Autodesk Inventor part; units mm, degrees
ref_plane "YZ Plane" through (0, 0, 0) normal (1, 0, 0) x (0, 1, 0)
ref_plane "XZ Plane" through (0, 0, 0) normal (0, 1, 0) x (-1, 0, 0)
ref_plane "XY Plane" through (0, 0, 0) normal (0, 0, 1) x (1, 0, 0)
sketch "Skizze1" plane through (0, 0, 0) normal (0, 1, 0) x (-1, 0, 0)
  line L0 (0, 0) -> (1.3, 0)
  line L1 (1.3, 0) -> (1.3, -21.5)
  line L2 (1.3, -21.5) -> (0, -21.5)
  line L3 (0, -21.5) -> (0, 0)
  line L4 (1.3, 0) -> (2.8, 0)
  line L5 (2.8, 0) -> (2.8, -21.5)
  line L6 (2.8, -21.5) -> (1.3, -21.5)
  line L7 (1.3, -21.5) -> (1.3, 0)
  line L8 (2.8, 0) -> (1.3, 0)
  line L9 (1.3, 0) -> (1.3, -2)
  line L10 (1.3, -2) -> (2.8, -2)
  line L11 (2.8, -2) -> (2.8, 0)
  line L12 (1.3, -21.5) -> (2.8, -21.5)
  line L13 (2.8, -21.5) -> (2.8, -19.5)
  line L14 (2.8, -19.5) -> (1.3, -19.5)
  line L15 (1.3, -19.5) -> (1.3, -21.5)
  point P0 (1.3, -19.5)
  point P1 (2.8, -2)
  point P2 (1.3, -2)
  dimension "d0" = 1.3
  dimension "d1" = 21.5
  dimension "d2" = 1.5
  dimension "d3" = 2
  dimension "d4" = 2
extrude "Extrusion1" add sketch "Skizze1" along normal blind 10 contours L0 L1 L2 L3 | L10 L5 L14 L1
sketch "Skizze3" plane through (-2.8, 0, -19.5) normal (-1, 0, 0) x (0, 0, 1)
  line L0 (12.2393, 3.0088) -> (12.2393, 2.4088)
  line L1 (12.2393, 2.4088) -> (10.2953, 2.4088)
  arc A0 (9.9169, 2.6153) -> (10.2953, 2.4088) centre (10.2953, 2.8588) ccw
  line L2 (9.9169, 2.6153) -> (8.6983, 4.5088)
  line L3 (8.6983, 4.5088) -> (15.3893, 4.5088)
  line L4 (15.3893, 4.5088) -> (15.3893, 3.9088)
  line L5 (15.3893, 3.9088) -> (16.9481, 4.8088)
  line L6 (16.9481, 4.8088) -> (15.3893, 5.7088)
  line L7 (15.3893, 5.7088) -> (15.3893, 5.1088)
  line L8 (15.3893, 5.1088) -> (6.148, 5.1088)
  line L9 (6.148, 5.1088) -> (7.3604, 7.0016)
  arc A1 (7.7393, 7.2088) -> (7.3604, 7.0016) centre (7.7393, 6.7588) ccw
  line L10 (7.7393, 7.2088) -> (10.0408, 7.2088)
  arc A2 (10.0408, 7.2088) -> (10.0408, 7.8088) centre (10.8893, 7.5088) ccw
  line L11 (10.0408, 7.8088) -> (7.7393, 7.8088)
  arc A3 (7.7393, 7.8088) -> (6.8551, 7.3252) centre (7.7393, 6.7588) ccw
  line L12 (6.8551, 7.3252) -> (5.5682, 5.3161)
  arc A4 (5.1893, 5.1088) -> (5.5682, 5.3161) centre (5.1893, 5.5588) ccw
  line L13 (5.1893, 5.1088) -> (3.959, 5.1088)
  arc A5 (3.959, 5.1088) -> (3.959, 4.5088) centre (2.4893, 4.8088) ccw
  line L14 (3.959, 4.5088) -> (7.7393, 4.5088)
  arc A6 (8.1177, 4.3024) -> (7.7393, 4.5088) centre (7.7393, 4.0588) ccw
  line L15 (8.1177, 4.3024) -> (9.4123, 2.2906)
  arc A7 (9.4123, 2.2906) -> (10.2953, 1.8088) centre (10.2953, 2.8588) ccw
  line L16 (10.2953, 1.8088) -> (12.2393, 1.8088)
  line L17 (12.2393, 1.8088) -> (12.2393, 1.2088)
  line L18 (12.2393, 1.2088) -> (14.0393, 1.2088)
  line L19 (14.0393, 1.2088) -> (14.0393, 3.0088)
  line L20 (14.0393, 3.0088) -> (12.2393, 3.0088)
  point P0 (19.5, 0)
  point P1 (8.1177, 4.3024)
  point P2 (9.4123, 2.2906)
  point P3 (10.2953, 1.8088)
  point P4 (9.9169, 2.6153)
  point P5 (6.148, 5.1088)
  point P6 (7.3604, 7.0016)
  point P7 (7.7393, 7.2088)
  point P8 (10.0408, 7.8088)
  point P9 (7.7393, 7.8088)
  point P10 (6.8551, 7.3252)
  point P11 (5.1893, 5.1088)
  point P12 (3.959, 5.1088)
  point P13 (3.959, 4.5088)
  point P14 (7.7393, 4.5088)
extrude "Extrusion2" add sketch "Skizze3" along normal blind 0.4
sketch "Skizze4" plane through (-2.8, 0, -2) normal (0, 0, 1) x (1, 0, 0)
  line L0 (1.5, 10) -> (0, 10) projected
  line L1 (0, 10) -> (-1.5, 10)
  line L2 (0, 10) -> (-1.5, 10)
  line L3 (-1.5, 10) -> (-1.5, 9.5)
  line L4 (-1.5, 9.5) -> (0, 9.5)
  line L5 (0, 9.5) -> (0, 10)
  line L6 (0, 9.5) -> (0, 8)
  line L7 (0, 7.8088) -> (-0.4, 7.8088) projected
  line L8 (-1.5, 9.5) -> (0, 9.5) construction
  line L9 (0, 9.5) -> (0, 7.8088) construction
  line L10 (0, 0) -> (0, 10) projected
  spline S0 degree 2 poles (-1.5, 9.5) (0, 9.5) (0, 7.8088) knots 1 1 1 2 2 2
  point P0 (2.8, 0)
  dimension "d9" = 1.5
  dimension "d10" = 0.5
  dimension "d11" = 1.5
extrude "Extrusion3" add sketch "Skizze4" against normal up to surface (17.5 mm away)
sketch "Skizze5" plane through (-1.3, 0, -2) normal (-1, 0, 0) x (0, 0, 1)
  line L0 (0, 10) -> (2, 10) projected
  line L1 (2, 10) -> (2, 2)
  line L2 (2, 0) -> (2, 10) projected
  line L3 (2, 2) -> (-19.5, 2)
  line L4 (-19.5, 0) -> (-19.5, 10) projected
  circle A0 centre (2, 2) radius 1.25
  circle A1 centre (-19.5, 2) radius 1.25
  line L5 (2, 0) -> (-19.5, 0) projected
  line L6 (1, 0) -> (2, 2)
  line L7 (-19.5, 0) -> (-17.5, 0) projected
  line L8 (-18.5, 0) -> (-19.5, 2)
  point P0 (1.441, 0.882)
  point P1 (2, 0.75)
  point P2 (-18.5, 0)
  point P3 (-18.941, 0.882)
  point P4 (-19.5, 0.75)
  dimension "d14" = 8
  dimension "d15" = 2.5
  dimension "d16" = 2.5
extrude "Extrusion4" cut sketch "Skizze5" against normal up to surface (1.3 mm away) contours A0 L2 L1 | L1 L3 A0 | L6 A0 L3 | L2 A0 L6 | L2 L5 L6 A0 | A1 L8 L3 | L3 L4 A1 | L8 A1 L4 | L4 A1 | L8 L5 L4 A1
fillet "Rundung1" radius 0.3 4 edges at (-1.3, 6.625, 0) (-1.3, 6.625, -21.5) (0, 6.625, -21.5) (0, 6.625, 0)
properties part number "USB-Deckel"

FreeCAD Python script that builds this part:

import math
import FreeCAD as App
import Part
import Sketcher
Q = App.Units.Quantity


def edges_at(feature, points):
    """Names of the edges that pass closest to the given points."""
    edges = feature.Shape.Edges
    near = lambda p: min(range(len(edges)), key=lambda i: edges[i].distToShape(Part.Vertex(*p))[0])
    return sorted({f"Edge{near(p) + 1}" for p in points})

doc = App.newDocument("Part")
body = doc.addObject("PartDesign::Body", "Body")

# Sketch on XZ plane
sketch1 = body.newObject("Sketcher::SketchObject", "Sketch")
sketch1.AttachmentSupport = (doc.getObject("XZ_Plane"), [""])
sketch1.MapMode = "FlatFace"
sketch1.addGeometry(Part.LineSegment(App.Vector(-1.3, 0, 0), App.Vector(0, 0, 0)), False)
sketch1.addGeometry(Part.LineSegment(App.Vector(0, 0, 0), App.Vector(0, -21.5, 0)), False)
sketch1.addGeometry(Part.LineSegment(App.Vector(0, -21.5, 0), App.Vector(-1.3, -21.5, 0)), False)
sketch1.addGeometry(Part.LineSegment(App.Vector(-1.3, -21.5, 0), App.Vector(-1.3, -19.5, 0)), False)
sketch1.addGeometry(Part.LineSegment(App.Vector(-1.3, -19.5, 0), App.Vector(-2.8, -19.5, 0)), False)
sketch1.addGeometry(Part.LineSegment(App.Vector(-2.8, -19.5, 0), App.Vector(-2.8, -2, 0)), False)
sketch1.addGeometry(Part.LineSegment(App.Vector(-2.8, -2, 0), App.Vector(-1.3, -2, 0)), False)
sketch1.addGeometry(Part.LineSegment(App.Vector(-1.3, -2, 0), App.Vector(-1.3, 0, 0)), False)
sketch1.addConstraint(Sketcher.Constraint("Coincident", 0, 2, 1, 1))
sketch1.addConstraint(Sketcher.Constraint("Coincident", 1, 2, 2, 1))
sketch1.addConstraint(Sketcher.Constraint("Coincident", 2, 2, 3, 1))
sketch1.addConstraint(Sketcher.Constraint("Coincident", 3, 2, 4, 1))
sketch1.addConstraint(Sketcher.Constraint("Coincident", 4, 2, 5, 1))
sketch1.addConstraint(Sketcher.Constraint("Coincident", 5, 2, 6, 1))
sketch1.addConstraint(Sketcher.Constraint("Coincident", 6, 2, 7, 1))
sketch1.addConstraint(Sketcher.Constraint("Coincident", 7, 2, 0, 1))
sketch1.addConstraint(Sketcher.Constraint("Horizontal", 0))
sketch1.addConstraint(Sketcher.Constraint("Vertical", 1))
sketch1.addConstraint(Sketcher.Constraint("Horizontal", 2))
sketch1.addConstraint(Sketcher.Constraint("Vertical", 3))
sketch1.addConstraint(Sketcher.Constraint("Horizontal", 4))
sketch1.addConstraint(Sketcher.Constraint("Vertical", 5))
sketch1.addConstraint(Sketcher.Constraint("Horizontal", 6))
sketch1.addConstraint(Sketcher.Constraint("Vertical", 7))
sketch1.addConstraint(Sketcher.Constraint("Coincident", 0, 2, -1, 1))
sketch1.addConstraint(Sketcher.Constraint("Vertical", 3, 2, 6, 2))
sketch1.addConstraint(Sketcher.Constraint("Equal", 3, 7))
sketch1.addConstraint(Sketcher.Constraint("DistanceY", 3, 1, 3, 2, 2.0))
sketch1.addConstraint(Sketcher.Constraint("DistanceX", 0, 1, 0, 2, 1.3))
sketch1.addConstraint(Sketcher.Constraint("DistanceX", 4, 2, 4, 1, 1.5))
sketch1.addConstraint(Sketcher.Constraint("DistanceY", 1, 2, 1, 1, 21.5))
pad1 = body.newObject("PartDesign::Pad", "Pad")
pad1.Profile = sketch1
pad1.Length = 10
pad1.Reversed = True

# Sketch on YZ plane
sketch2 = body.newObject("Sketcher::SketchObject", "Sketch001")
sketch2.AttachmentSupport = (doc.getObject("YZ_Plane"), [""])
sketch2.MapMode = "FlatFace"
sketch2.AttachmentOffset = App.Placement(App.Vector(0, 0, -2.8), App.Rotation())
sketch2.addGeometry(Part.LineSegment(App.Vector(3.01, -5.46, 0), App.Vector(3.01, -7.26, 0)), False)
sketch2.addGeometry(Part.LineSegment(App.Vector(3.01, -7.26, 0), App.Vector(2.41, -7.26, 0)), False)
sketch2.addGeometry(Part.LineSegment(App.Vector(2.41, -7.26, 0), App.Vector(2.41, -9.2, 0)), False)
sketch2.addGeometry(Part.ArcOfCircle(Part.Circle(App.Vector(2.86, -9.2, 0), App.Vector(0, 0, 1), 0.45), math.radians(180), math.radians(237)), False)
sketch2.addGeometry(Part.LineSegment(App.Vector(2.62, -9.58, 0), App.Vector(4.51, -10.8, 0)), False)
sketch2.addGeometry(Part.LineSegment(App.Vector(4.51, -10.8, 0), App.Vector(4.51, -4.11, 0)), False)
sketch2.addGeometry(Part.LineSegment(App.Vector(4.51, -4.11, 0), App.Vector(3.91, -4.11, 0)), False)
sketch2.addGeometry(Part.LineSegment(App.Vector(3.91, -4.11, 0), App.Vector(4.81, -2.55, 0)), False)
sketch2.addGeometry(Part.LineSegment(App.Vector(4.81, -2.55, 0), App.Vector(5.71, -4.11, 0)), False)
sketch2.addGeometry(Part.LineSegment(App.Vector(5.71, -4.11, 0), App.Vector(5.11, -4.11, 0)), False)
sketch2.addGeometry(Part.LineSegment(App.Vector(5.11, -4.11, 0), App.Vector(5.11, -13.35, 0)), False)
sketch2.addGeometry(Part.LineSegment(App.Vector(5.11, -13.35, 0), App.Vector(7, -12.14, 0)), False)
sketch2.addGeometry(Part.ArcOfCircle(Part.Circle(App.Vector(6.76, -11.76, 0), App.Vector(0, 0, 1), 0.45), math.radians(-57), math.radians(0)), False)
sketch2.addGeometry(Part.LineSegment(App.Vector(7.21, -11.76, 0), App.Vector(7.21, -9.46, 0)), False)
sketch2.addGeometry(Part.ArcOfCircle(Part.Circle(App.Vector(7.51, -8.61, 0), App.Vector(0, 0, 1), 0.9), math.radians(-71), math.radians(251)), False)
sketch2.addGeometry(Part.LineSegment(App.Vector(7.81, -9.46, 0), App.Vector(7.81, -11.76, 0)), False)
sketch2.addGeometry(Part.ArcOfCircle(Part.Circle(App.Vector(6.76, -11.76, 0), App.Vector(0, 0, 1), 1.05), math.radians(-57), math.radians(0)), False)
sketch2.addGeometry(Part.LineSegment(App.Vector(7.33, -12.64, 0), App.Vector(5.32, -13.93, 0)), False)
sketch2.addGeometry(Part.ArcOfCircle(Part.Circle(App.Vector(5.56, -14.31, 0), App.Vector(0, 0, 1), 0.45), math.radians(123), math.radians(180)), False)
sketch2.addGeometry(Part.LineSegment(App.Vector(5.11, -14.31, 0), App.Vector(5.11, -15.54, 0)), False)
sketch2.addGeometry(Part.ArcOfCircle(Part.Circle(App.Vector(4.81, -17.01, 0), App.Vector(0, 0, 1), 1.5), math.radians(102), math.radians(438)), False)
sketch2.addGeometry(Part.LineSegment(App.Vector(4.51, -15.54, 0), App.Vector(4.51, -11.76, 0)), False)
sketch2.addGeometry(Part.ArcOfCircle(Part.Circle(App.Vector(4.06, -11.76, 0), App.Vector(0, 0, 1), 0.45), math.radians(0), math.radians(57)), False)
sketch2.addGeometry(Part.LineSegment(App.Vector(4.3, -11.38, 0), App.Vector(2.29, -10.09, 0)), False)
sketch2.addGeometry(Part.ArcOfCircle(Part.Circle(App.Vector(2.86, -9.2, 0), App.Vector(0, 0, 1), 1.05), math.radians(180), math.radians(237)), False)
sketch2.addGeometry(Part.LineSegment(App.Vector(1.81, -9.2, 0), App.Vector(1.81, -7.26, 0)), False)
sketch2.addGeometry(Part.LineSegment(App.Vector(1.81, -7.26, 0), App.Vector(1.21, -7.26, 0)), False)
sketch2.addGeometry(Part.LineSegment(App.Vector(1.21, -7.26, 0), App.Vector(1.21, -5.46, 0)), False)
sketch2.addGeometry(Part.LineSegment(App.Vector(1.21, -5.46, 0), App.Vector(3.01, -5.46, 0)), False)
sketch2.addConstraint(Sketcher.Constraint("Coincident", 0, 2, 1, 1))
sketch2.addConstraint(Sketcher.Constraint("Coincident", 1, 2, 2, 1))
sketch2.addConstraint(Sketcher.Constraint("Tangent", 2, 2, 3, 1))
sketch2.addConstraint(Sketcher.Constraint("Tangent", 3, 2, 4, 1))
sketch2.addConstraint(Sketcher.Constraint("Coincident", 4, 2, 5, 1))
sketch2.addConstraint(Sketcher.Constraint("Coincident", 5, 2, 6, 1))
sketch2.addConstraint(Sketcher.Constraint("Coincident", 6, 2, 7, 1))
sketch2.addConstraint(Sketcher.Constraint("Coincident", 7, 2, 8, 1))
sketch2.addConstraint(Sketcher.Constraint("Coincident", 8, 2, 9, 1))
sketch2.addConstraint(Sketcher.Constraint("Coincident", 9, 2, 10, 1))
sketch2.addConstraint(Sketcher.Constraint("Coincident", 10, 2, 11, 1))
sketch2.addConstraint(Sketcher.Constraint("Tangent", 11, 2, 12, 1))
sketch2.addConstraint(Sketcher.Constraint("Tangent", 12, 2, 13, 1))
sketch2.addConstraint(Sketcher.Constraint("Coincident", 13, 2, 14, 2))
sketch2.addConstraint(Sketcher.Constraint("Coincident", 14, 1, 15, 1))
sketch2.addConstraint(Sketcher.Constraint("Tangent", 15, 2, 16, 2))
sketch2.addConstraint(Sketcher.Constraint("Tangent", 16, 1, 17, 1))
sketch2.addConstraint(Sketcher.Constraint("Tangent", 17, 2, 18, 1))
sketch2.addConstraint(Sketcher.Constraint("Tangent", 18, 2, 19, 1))
sketch2.addConstraint(Sketcher.Constraint("Coincident", 19, 2, 20, 2))
sketch2.addConstraint(Sketcher.Constraint("Coincident", 20, 1, 21, 1))
sketch2.addConstraint(Sketcher.Constraint("Tangent", 21, 2, 22, 1))
sketch2.addConstraint(Sketcher.Constraint("Tangent", 22, 2, 23, 1))
sketch2.addConstraint(Sketcher.Constraint("Tangent", 23, 2, 24, 2))
sketch2.addConstraint(Sketcher.Constraint("Tangent", 24, 1, 25, 1))
sketch2.addConstraint(Sketcher.Constraint("Coincident", 25, 2, 26, 1))
sketch2.addConstraint(Sketcher.Constraint("Coincident", 26, 2, 27, 1))
sketch2.addConstraint(Sketcher.Constraint("Coincident", 27, 2, 28, 1))
sketch2.addConstraint(Sketcher.Constraint("Coincident", 28, 2, 0, 1))
sketch2.addConstraint(Sketcher.Constraint("Vertical", 0))
sketch2.addConstraint(Sketcher.Constraint("Horizontal", 1))
sketch2.addConstraint(Sketcher.Constraint("Vertical", 2))
sketch2.addConstraint(Sketcher.Constraint("Vertical", 5))
sketch2.addConstraint(Sketcher.Constraint("Horizontal", 6))
sketch2.addConstraint(Sketcher.Constraint("Horizontal", 9))
sketch2.addConstraint(Sketcher.Constraint("Vertical", 10))
sketch2.addConstraint(Sketcher.Constraint("Vertical", 13))
sketch2.addConstraint(Sketcher.Constraint("Vertical", 15))
sketch2.addConstraint(Sketcher.Constraint("Vertical", 19))
sketch2.addConstraint(Sketcher.Constraint("Vertical", 21))
sketch2.addConstraint(Sketcher.Constraint("Vertical", 25))
sketch2.addConstraint(Sketcher.Constraint("Horizontal", 26))
sketch2.addConstraint(Sketcher.Constraint("Vertical", 27))
sketch2.addConstraint(Sketcher.Constraint("Horizontal", 28))
sketch2.addConstraint(Sketcher.Constraint("Coincident", 16, 3, 12, 3))
sketch2.addConstraint(Sketcher.Constraint("Coincident", 24, 3, 3, 3))
sketch2.addConstraint(Sketcher.Constraint("Equal", 3, 12))
sketch2.addConstraint(Sketcher.Constraint("Equal", 12, 18))
sketch2.addConstraint(Sketcher.Constraint("Equal", 18, 22))
sketch2.addConstraint(Sketcher.Constraint("Equal", 16, 24))
sketch2.addConstraint(Sketcher.Constraint("Parallel", 11, 17))
sketch2.addConstraint(Sketcher.Constraint("Parallel", 4, 23))
sketch2.addConstraint(Sketcher.Constraint("Horizontal", 16, 3, 22, 3))
sketch2.addConstraint(Sketcher.Constraint("Horizontal", 6, 2, 8, 2))
sketch2.addConstraint(Sketcher.Constraint("Horizontal", 13, 2, 14, 1))
sketch2.addConstraint(Sketcher.Constraint("Horizontal", 19, 2, 20, 1))
sketch2.addConstraint(Sketcher.Constraint("Horizontal", 1, 2, 25, 2))
sketch2.addConstraint(Sketcher.Constraint("Vertical", 20, 3, 7, 2))
sketch2.addConstraint(Sketcher.Constraint("Vertical", 10, 2, 18, 2))
sketch2.addConstraint(Sketcher.Constraint("Vertical", 5, 2, 20, 1))
sketch2.addConstraint(Sketcher.Constraint("Equal", 1, 6))
sketch2.addConstraint(Sketcher.Constraint("Equal", 6, 9))
sketch2.addConstraint(Sketcher.Constraint("Equal", 9, 26))
sketch2.addConstraint(Sketcher.Constraint("Equal", 28, 0))
sketch2.addConstraint(Sketcher.Constraint("Radius", 14, 0.9))
sketch2.addConstraint(Sketcher.Constraint("Radius", 20, 1.5))
sketch2.addConstraint(Sketcher.Constraint("Angle", 7, Q("59.9993 deg")))
sketch2.addConstraint(Sketcher.Constraint("Radius", 3, 0.45))
sketch2.addConstraint(Sketcher.Constraint("Radius", 16, 1.05))
sketch2.addConstraint(Sketcher.Constraint("DistanceX", 1, 2, 1, 1, 0.6))
sketch2.addConstraint(Sketcher.Constraint("DistanceX", 5, 2, 14, 3, 3.0))
sketch2.addConstraint(Sketcher.Constraint("Distance", 7, 1.8))
sketch2.addConstraint(Sketcher.Constraint("Angle", 11, Q("32.641 deg")))
sketch2.addConstraint(Sketcher.Constraint("DistanceX", 3, 3, 12, 3, 3.9))
sketch2.addConstraint(Sketcher.Constraint("DistanceY", 18, 3, 14, 3, 5.7))
sketch2.addConstraint(Sketcher.Constraint("DistanceY", 20, 3, 18, 3, 2.7))
sketch2.addConstraint(Sketcher.Constraint("DistanceY", 22, 3, 0, 2, 4.5))
sketch2.addConstraint(Sketcher.Constraint("DistanceY", 14, 3, 5, 2, 4.5))
sketch2.addConstraint(Sketcher.Constraint("DistanceY", 2, 2, 2, 1, 1.944))
sketch2.addConstraint(Sketcher.Constraint("DistanceY", 3, 2, -1, 1, 9.583))
sketch2.addConstraint(Sketcher.Constraint("DistanceX", -1, 1, 17, 2, 5.316))
pad2 = body.newObject("PartDesign::Pad", "Pad001")
pad2.Profile = sketch2
pad2.Length = 0.4
pad2.Reversed = True

# Sketch on XY plane
sketch3 = body.newObject("Sketcher::SketchObject", "Sketch002")
sketch3.AttachmentSupport = (doc.getObject("XY_Plane"), [""])
sketch3.MapMode = "FlatFace"
sketch3.AttachmentOffset = App.Placement(App.Vector(0, 0, -2), App.Rotation())
sketch3.addGeometry(Part.LineSegment(App.Vector(-2.8, 10, 0), App.Vector(-4.3, 10, 0)), False)
sketch3.addGeometry(Part.LineSegment(App.Vector(-4.3, 10, 0), App.Vector(-4.3, 9.5, 0)), False)
sketch3.addGeometry(Part.BSplineCurve([App.Vector(-4.3, 9.5, 0), App.Vector(-2.8, 9.5, 0), App.Vector(-2.8, 7.8088, 0)], [3, 3], [1, 2], False, 2, [1, 1, 1], False), False)
sketch3.addGeometry(Part.LineSegment(App.Vector(-2.8, 7.8088, 0), App.Vector(-2.8, 10, 0)), False)
sketch3.addConstraint(Sketcher.Constraint("Block", 2))
sketch3.addConstraint(Sketcher.Constraint("Coincident", 0, 2, 1, 1))
sketch3.addConstraint(Sketcher.Constraint("Coincident", 1, 2, 2, 1))
sketch3.addConstraint(Sketcher.Constraint("Coincident", 2, 2, 3, 1))
sketch3.addConstraint(Sketcher.Constraint("Coincident", 3, 2, 0, 1))
sketch3.addConstraint(Sketcher.Constraint("Horizontal", 0))
sketch3.addConstraint(Sketcher.Constraint("Vertical", 1))
sketch3.addConstraint(Sketcher.Constraint("Vertical", 3))
sketch3.addConstraint(Sketcher.Constraint("DistanceY", 1, 2, 1, 1, 0.5))
pad3 = body.newObject("PartDesign::Pad", "Pad002")
pad3.Profile = sketch3
pad3.Length = 17.5
pad3.Reversed = True

# Sketch on YZ plane
sketch4 = body.newObject("Sketcher::SketchObject", "Sketch003")
sketch4.AttachmentSupport = (doc.getObject("YZ_Plane"), [""])
sketch4.MapMode = "FlatFace"
sketch4.AttachmentOffset = App.Placement(App.Vector(0, 0, -1.3), App.Rotation())
sketch4.addGeometry(Part.LineSegment(App.Vector(0.9, -0.6, 0), App.Vector(0, -1, 0)), False)
sketch4.addGeometry(Part.LineSegment(App.Vector(0, -1, 0), App.Vector(0, 0, 0)), False)
sketch4.addGeometry(Part.LineSegment(App.Vector(0, 0, 0), App.Vector(0.8, 0, 0)), False)
sketch4.addGeometry(Part.ArcOfCircle(Part.Circle(App.Vector(2, 0, 0), App.Vector(0, 0, 1), 1.2), math.radians(-153), math.radians(180)), False)
sketch4.addGeometry(Part.ArcOfCircle(Part.Circle(App.Vector(2, -21.5, 0), App.Vector(0, 0, 1), 1.2), math.radians(180), math.radians(513)), False)
sketch4.addGeometry(Part.LineSegment(App.Vector(0.8, -21.5, 0), App.Vector(0, -21.5, 0)), False)
sketch4.addGeometry(Part.LineSegment(App.Vector(0, -21.5, 0), App.Vector(0, -20.5, 0)), False)
sketch4.addGeometry(Part.LineSegment(App.Vector(0, -20.5, 0), App.Vector(0.9, -20.9, 0)), False)
sketch4.addConstraint(Sketcher.Constraint("Coincident", 0, 2, 1, 1))
sketch4.addConstraint(Sketcher.Constraint("Coincident", 1, 2, 2, 1))
sketch4.addConstraint(Sketcher.Constraint("Coincident", 2, 2, 3, 2))
sketch4.addConstraint(Sketcher.Constraint("Coincident", 3, 1, 0, 1))
sketch4.addConstraint(Sketcher.Constraint("Coincident", 4, 1, 5, 1))
sketch4.addConstraint(Sketcher.Constraint("Coincident", 5, 2, 6, 1))
sketch4.addConstraint(Sketcher.Constraint("Coincident", 6, 2, 7, 1))
sketch4.addConstraint(Sketcher.Constraint("Coincident", 7, 2, 4, 2))
sketch4.addConstraint(Sketcher.Constraint("Vertical", 1))
sketch4.addConstraint(Sketcher.Constraint("Horizontal", 2))
sketch4.addConstraint(Sketcher.Constraint("Horizontal", 5))
sketch4.addConstraint(Sketcher.Constraint("Vertical", 6))
sketch4.addConstraint(Sketcher.Constraint("Coincident", 1, 2, -1, 1))
sketch4.addConstraint(Sketcher.Constraint("Equal", 3, 4))
sketch4.addConstraint(Sketcher.Constraint("PointOnObject", 3, 3, -1))
sketch4.addConstraint(Sketcher.Constraint("PointOnObject", 5, 2, -2))
sketch4.addConstraint(Sketcher.Constraint("Vertical", 3, 3, 4, 3))
sketch4.addConstraint(Sketcher.Constraint("Vertical", 3, 1, 7, 2))
sketch4.addConstraint(Sketcher.Constraint("Equal", 1, 6))
sketch4.addConstraint(Sketcher.Constraint("Equal", 0, 7))
sketch4.addConstraint(Sketcher.Constraint("Radius", 3, 1.25))
sketch4.addConstraint(Sketcher.Constraint("DistanceY", 1, 1, 1, 2, 1.0))
sketch4.addConstraint(Sketcher.Constraint("DistanceX", -1, 1, 3, 3, 2.0))
sketch4.addConstraint(Sketcher.Constraint("DistanceY", 4, 3, -1, 1, 21.5))
sketch4.addConstraint(Sketcher.Constraint("DistanceX", -1, 1, 3, 1, 0.882))
pocket1 = body.newObject("PartDesign::Pocket", "Pocket")
pocket1.Profile = sketch4
pocket1.Length = 1.3
pocket1.Reversed = True
doc.recompute()

fillet = body.newObject("PartDesign::Fillet", "Fillet")
fillet.Base = (pocket1, edges_at(pocket1, [
    (-1.3, 6.625, 0),
    (-1.3, 6.625, -21.5),
    (0, 6.625, -21.5),
    (0, 6.625, 0),
]))
fillet.Radius = 0.3

doc.recompute()
